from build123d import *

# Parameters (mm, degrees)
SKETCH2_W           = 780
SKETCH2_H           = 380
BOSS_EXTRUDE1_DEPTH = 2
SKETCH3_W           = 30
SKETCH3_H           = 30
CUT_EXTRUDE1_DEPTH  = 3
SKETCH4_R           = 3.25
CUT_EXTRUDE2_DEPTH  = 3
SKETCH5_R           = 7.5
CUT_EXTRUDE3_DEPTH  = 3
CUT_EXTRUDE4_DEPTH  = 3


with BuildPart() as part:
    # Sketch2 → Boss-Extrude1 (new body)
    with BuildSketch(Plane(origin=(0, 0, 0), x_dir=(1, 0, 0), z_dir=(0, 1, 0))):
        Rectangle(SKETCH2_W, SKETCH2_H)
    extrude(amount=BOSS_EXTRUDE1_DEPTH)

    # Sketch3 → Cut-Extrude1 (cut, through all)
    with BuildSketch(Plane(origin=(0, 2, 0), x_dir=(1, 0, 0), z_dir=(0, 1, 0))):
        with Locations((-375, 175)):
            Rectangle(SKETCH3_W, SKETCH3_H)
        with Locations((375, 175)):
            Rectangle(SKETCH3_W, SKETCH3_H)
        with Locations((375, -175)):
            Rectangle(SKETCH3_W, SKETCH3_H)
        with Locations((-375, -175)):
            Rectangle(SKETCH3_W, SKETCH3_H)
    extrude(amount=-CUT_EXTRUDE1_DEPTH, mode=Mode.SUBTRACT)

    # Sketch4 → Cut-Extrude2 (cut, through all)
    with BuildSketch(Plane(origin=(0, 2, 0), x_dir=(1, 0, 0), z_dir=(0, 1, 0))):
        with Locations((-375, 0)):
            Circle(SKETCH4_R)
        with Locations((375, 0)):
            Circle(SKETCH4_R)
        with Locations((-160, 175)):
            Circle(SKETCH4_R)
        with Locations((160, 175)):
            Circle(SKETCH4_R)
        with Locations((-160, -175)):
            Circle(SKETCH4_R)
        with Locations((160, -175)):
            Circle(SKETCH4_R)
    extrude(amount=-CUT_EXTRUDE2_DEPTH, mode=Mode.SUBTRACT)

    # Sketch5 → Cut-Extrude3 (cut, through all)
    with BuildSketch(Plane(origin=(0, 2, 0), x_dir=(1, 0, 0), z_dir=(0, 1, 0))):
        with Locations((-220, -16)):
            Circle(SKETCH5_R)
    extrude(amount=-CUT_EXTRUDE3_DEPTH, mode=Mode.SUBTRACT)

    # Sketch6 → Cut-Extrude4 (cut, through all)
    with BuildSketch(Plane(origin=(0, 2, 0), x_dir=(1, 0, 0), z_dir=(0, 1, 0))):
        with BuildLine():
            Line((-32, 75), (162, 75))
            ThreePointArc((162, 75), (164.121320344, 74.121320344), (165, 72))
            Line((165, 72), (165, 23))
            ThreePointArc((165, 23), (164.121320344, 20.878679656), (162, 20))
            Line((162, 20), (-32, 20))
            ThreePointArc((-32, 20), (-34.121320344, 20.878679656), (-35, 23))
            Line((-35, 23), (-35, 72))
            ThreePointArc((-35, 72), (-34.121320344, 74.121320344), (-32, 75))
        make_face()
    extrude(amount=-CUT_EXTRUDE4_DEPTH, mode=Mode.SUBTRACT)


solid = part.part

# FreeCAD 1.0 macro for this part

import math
import FreeCAD as App
import Part
import Sketcher
from FreeCAD import Vector
Q = App.Units.Quantity

doc = App.newDocument("Part")
body = doc.addObject("PartDesign::Body", "Body")

sketch1 = body.newObject("Sketcher::SketchObject", "Sketch")
sketch1.AttachmentSupport = (doc.getObject("XZ_Plane"), [""])
sketch1.MapMode = "FlatFace"
sketch1.addGeometry(Part.LineSegment(Vector(-390, -190, 0), Vector(-390, 190, 0)), False)
sketch1.addGeometry(Part.LineSegment(Vector(-390, 190, 0), Vector(390, 190, 0)), False)
sketch1.addGeometry(Part.LineSegment(Vector(390, 190, 0), Vector(390, -190, 0)), False)
sketch1.addGeometry(Part.LineSegment(Vector(390, -190, 0), Vector(-390, -190, 0)), False)
sketch1.addConstraint(Sketcher.Constraint("Coincident", 0, 2, 1, 1))
sketch1.addConstraint(Sketcher.Constraint("Coincident", 1, 2, 2, 1))
sketch1.addConstraint(Sketcher.Constraint("Coincident", 2, 2, 3, 1))
sketch1.addConstraint(Sketcher.Constraint("Coincident", 3, 2, 0, 1))
sketch1.addConstraint(Sketcher.Constraint("Vertical", 0))
sketch1.addConstraint(Sketcher.Constraint("Horizontal", 1))
sketch1.addConstraint(Sketcher.Constraint("Vertical", 2))
sketch1.addConstraint(Sketcher.Constraint("Horizontal", 3))
sketch1.addConstraint(Sketcher.Constraint("Symmetric", 0, 2, 2, 2, -1, 1))
sketch1.addConstraint(Sketcher.Constraint("DistanceX", 1, 1, 1, 2, Q("780 mm")))
sketch1.addConstraint(Sketcher.Constraint("DistanceY", 0, 1, 0, 2, Q("380 mm")))
pad1 = body.newObject("PartDesign::Pad", "Pad")
pad1.Profile = sketch1
pad1.Length = 2
pad1.Reversed = True

sketch2 = body.newObject("Sketcher::SketchObject", "Sketch001")
sketch2.AttachmentSupport = (doc.getObject("XZ_Plane"), [""])
sketch2.MapMode = "FlatFace"
sketch2.AttachmentOffset = App.Placement(Vector(0, 0, -2), App.Rotation())
sketch2.addGeometry(Part.LineSegment(Vector(-390, -190, 0), Vector(-390, -160, 0)), False)
sketch2.addGeometry(Part.LineSegment(Vector(-390, -160, 0), Vector(-360, -160, 0)), False)
sketch2.addGeometry(Part.LineSegment(Vector(-360, -160, 0), Vector(-360, -190, 0)), False)
sketch2.addGeometry(Part.LineSegment(Vector(-360, -190, 0), Vector(-390, -190, 0)), False)
sketch2.addGeometry(Part.LineSegment(Vector(360, -190, 0), Vector(360, -160, 0)), False)
sketch2.addGeometry(Part.LineSegment(Vector(360, -160, 0), Vector(390, -160, 0)), False)
sketch2.addGeometry(Part.LineSegment(Vector(390, -160, 0), Vector(390, -190, 0)), False)
sketch2.addGeometry(Part.LineSegment(Vector(390, -190, 0), Vector(360, -190, 0)), False)
sketch2.addGeometry(Part.LineSegment(Vector(360, 160, 0), Vector(360, 190, 0)), False)
sketch2.addGeometry(Part.LineSegment(Vector(360, 190, 0), Vector(390, 190, 0)), False)
sketch2.addGeometry(Part.LineSegment(Vector(390, 190, 0), Vector(390, 160, 0)), False)
sketch2.addGeometry(Part.LineSegment(Vector(390, 160, 0), Vector(360, 160, 0)), False)
sketch2.addGeometry(Part.LineSegment(Vector(-390, 160, 0), Vector(-390, 190, 0)), False)
sketch2.addGeometry(Part.LineSegment(Vector(-390, 190, 0), Vector(-360, 190, 0)), False)
sketch2.addGeometry(Part.LineSegment(Vector(-360, 190, 0), Vector(-360, 160, 0)), False)
sketch2.addGeometry(Part.LineSegment(Vector(-360, 160, 0), Vector(-390, 160, 0)), False)
sketch2.addConstraint(Sketcher.Constraint("Coincident", 0, 2, 1, 1))
sketch2.addConstraint(Sketcher.Constraint("Coincident", 1, 2, 2, 1))
sketch2.addConstraint(Sketcher.Constraint("Coincident", 2, 2, 3, 1))
sketch2.addConstraint(Sketcher.Constraint("Coincident", 3, 2, 0, 1))
sketch2.addConstraint(Sketcher.Constraint("Coincident", 4, 2, 5, 1))
sketch2.addConstraint(Sketcher.Constraint("Coincident", 5, 2, 6, 1))
sketch2.addConstraint(Sketcher.Constraint("Coincident", 6, 2, 7, 1))
sketch2.addConstraint(Sketcher.Constraint("Coincident", 7, 2, 4, 1))
sketch2.addConstraint(Sketcher.Constraint("Coincident", 8, 2, 9, 1))
sketch2.addConstraint(Sketcher.Constraint("Coincident", 9, 2, 10, 1))
sketch2.addConstraint(Sketcher.Constraint("Coincident", 10, 2, 11, 1))
sketch2.addConstraint(Sketcher.Constraint("Coincident", 11, 2, 8, 1))
sketch2.addConstraint(Sketcher.Constraint("Coincident", 12, 2, 13, 1))
sketch2.addConstraint(Sketcher.Constraint("Coincident", 13, 2, 14, 1))
sketch2.addConstraint(Sketcher.Constraint("Coincident", 14, 2, 15, 1))
sketch2.addConstraint(Sketcher.Constraint("Coincident", 15, 2, 12, 1))
sketch2.addConstraint(Sketcher.Constraint("Vertical", 0))
sketch2.addConstraint(Sketcher.Constraint("Horizontal", 1))
sketch2.addConstraint(Sketcher.Constraint("Vertical", 2))
sketch2.addConstraint(Sketcher.Constraint("Horizontal", 3))
sketch2.addConstraint(Sketcher.Constraint("Vertical", 4))
sketch2.addConstraint(Sketcher.Constraint("Horizontal", 5))
sketch2.addConstraint(Sketcher.Constraint("Vertical", 6))
sketch2.addConstraint(Sketcher.Constraint("Horizontal", 7))
sketch2.addConstraint(Sketcher.Constraint("Vertical", 8))
sketch2.addConstraint(Sketcher.Constraint("Horizontal", 9))
sketch2.addConstraint(Sketcher.Constraint("Vertical", 10))
sketch2.addConstraint(Sketcher.Constraint("Horizontal", 11))
sketch2.addConstraint(Sketcher.Constraint("Vertical", 12))
sketch2.addConstraint(Sketcher.Constraint("Horizontal", 13))
sketch2.addConstraint(Sketcher.Constraint("Vertical", 14))
sketch2.addConstraint(Sketcher.Constraint("Horizontal", 15))
sketch2.addConstraint(Sketcher.Constraint("Symmetric", 2, 2, 8, 2, -1, 1))
sketch2.addConstraint(Sketcher.Constraint("Symmetric", 0, 2, 10, 2, -1, 1))
sketch2.addConstraint(Sketcher.Constraint("Symmetric", 6, 2, 12, 2, -1, 1))
sketch2.addConstraint(Sketcher.Constraint("Symmetric", 4, 2, 14, 2, -1, 1))
sketch2.addConstraint(Sketcher.Constraint("Symmetric", 1, 2, 4, 2, -2))
sketch2.addConstraint(Sketcher.Constraint("Symmetric", 3, 2, 6, 2, -2))
sketch2.addConstraint(Sketcher.Constraint("Equal", 15, 0))
sketch2.addConstraint(Sketcher.Constraint("DistanceX", 1, 1, 1, 2, Q("30 mm")))
sketch2.addConstraint(Sketcher.Constraint("DistanceX", 0, 2, -1, 1, Q("390 mm")))
sketch2.addConstraint(Sketcher.Constraint("DistanceY", 0, 2, -1, 1, Q("160 mm")))
pocket1 = body.newObject("PartDesign::Pocket", "Pocket")
pocket1.Profile = sketch2
pocket1.Type = "ThroughAll"
pocket1.Reversed = True

sketch3 = body.newObject("Sketcher::SketchObject", "Sketch002")
sketch3.AttachmentSupport = (doc.getObject("XZ_Plane"), [""])
sketch3.MapMode = "FlatFace"
sketch3.AttachmentOffset = App.Placement(Vector(0, 0, -2), App.Rotation())
sketch3.addGeometry(Part.Circle(Vector(-375, 0, 0), Vector(0, 0, 1), 3.2), False)
sketch3.addGeometry(Part.Circle(Vector(375, 0, 0), Vector(0, 0, 1), 3.2), False)
sketch3.addGeometry(Part.Circle(Vector(-160, -175, 0), Vector(0, 0, 1), 3.2), False)
sketch3.addGeometry(Part.Circle(Vector(160, -175, 0), Vector(0, 0, 1), 3.2), False)
sketch3.addGeometry(Part.Circle(Vector(-160, 175, 0), Vector(0, 0, 1), 3.2), False)
sketch3.addGeometry(Part.Circle(Vector(160, 175, 0), Vector(0, 0, 1), 3.2), False)
sketch3.addConstraint(Sketcher.Constraint("Equal", 0, 1))
sketch3.addConstraint(Sketcher.Constraint("Equal", 1, 2))
sketch3.addConstraint(Sketcher.Constraint("Equal", 2, 3))
sketch3.addConstraint(Sketcher.Constraint("Equal", 3, 4))
sketch3.addConstraint(Sketcher.Constraint("Equal", 4, 5))
sketch3.addConstraint(Sketcher.Constraint("Symmetric", 0, 3, 1, 3, -1, 1))
sketch3.addConstraint(Sketcher.Constraint("Symmetric", 3, 3, 4, 3, -1, 1))
sketch3.addConstraint(Sketcher.Constraint("Symmetric", 2, 3, 5, 3, -1, 1))
sketch3.addConstraint(Sketcher.Constraint("Symmetric", 2, 3, 3, 3, -2))
sketch3.addConstraint(Sketcher.Constraint("PointOnObject", 0, 3, -1))
sketch3.addConstraint(Sketcher.Constraint("Diameter", 0, Q("6.5 mm")))
sketch3.addConstraint(Sketcher.Constraint("DistanceX", 0, 3, -1, 1, Q("375 mm")))
sketch3.addConstraint(Sketcher.Constraint("DistanceX", 2, 3, -1, 1, Q("160 mm")))
sketch3.addConstraint(Sketcher.Constraint("DistanceY", 2, 3, -1, 1, Q("175 mm")))
pocket2 = body.newObject("PartDesign::Pocket", "Pocket001")
pocket2.Profile = sketch3
pocket2.Type = "ThroughAll"
pocket2.Reversed = True

sketch4 = body.newObject("Sketcher::SketchObject", "Sketch003")
sketch4.AttachmentSupport = (doc.getObject("XZ_Plane"), [""])
sketch4.MapMode = "FlatFace"
sketch4.AttachmentOffset = App.Placement(Vector(0, 0, -2), App.Rotation())
sketch4.addGeometry(Part.Circle(Vector(-220, 16, 0), Vector(0, 0, 1), 8), False)
sketch4.addConstraint(Sketcher.Constraint("Diameter", 0, Q("15 mm")))
sketch4.addConstraint(Sketcher.Constraint("DistanceX", 0, 3, -1, 1, Q("220 mm")))
sketch4.addConstraint(Sketcher.Constraint("DistanceY", -1, 1, 0, 3, Q("16 mm")))
pocket3 = body.newObject("PartDesign::Pocket", "Pocket002")
pocket3.Profile = sketch4
pocket3.Type = "ThroughAll"
pocket3.Reversed = True

sketch5 = body.newObject("Sketcher::SketchObject", "Sketch004")
sketch5.AttachmentSupport = (doc.getObject("XZ_Plane"), [""])
sketch5.MapMode = "FlatFace"
sketch5.AttachmentOffset = App.Placement(Vector(0, 0, -2), App.Rotation())
sketch5.addGeometry(Part.LineSegment(Vector(162, -75, 0), Vector(-32, -75, 0)), False)
sketch5.addGeometry(Part.ArcOfCircle(Part.Circle(Vector(-32, -72, 0), Vector(0, 0, 1), 3), math.radians(180), math.radians(270)), False)
sketch5.addGeometry(Part.LineSegment(Vector(-35, -72, 0), Vector(-35, -23, 0)), False)
sketch5.addGeometry(Part.ArcOfCircle(Part.Circle(Vector(-32, -23, 0), Vector(0, 0, 1), 3), math.radians(90), math.radians(180)), False)
sketch5.addGeometry(Part.LineSegment(Vector(-32, -20, 0), Vector(162, -20, 0)), False)
sketch5.addGeometry(Part.ArcOfCircle(Part.Circle(Vector(162, -23, 0), Vector(0, 0, 1), 3), math.radians(0), math.radians(90)), False)
sketch5.addGeometry(Part.LineSegment(Vector(165, -23, 0), Vector(165, -72, 0)), False)
sketch5.addGeometry(Part.ArcOfCircle(Part.Circle(Vector(162, -72, 0), Vector(0, 0, 1), 3), math.radians(-90), math.radians(0)), False)
sketch5.addConstraint(Sketcher.Constraint("Tangent", 0, 2, 1, 2))
sketch5.addConstraint(Sketcher.Constraint("Tangent", 1, 1, 2, 1))
sketch5.addConstraint(Sketcher.Constraint("Tangent", 2, 2, 3, 2))
sketch5.addConstraint(Sketcher.Constraint("Tangent", 3, 1, 4, 1))
sketch5.addConstraint(Sketcher.Constraint("Tangent", 4, 2, 5, 2))
sketch5.addConstraint(Sketcher.Constraint("Tangent", 5, 1, 6, 1))
sketch5.addConstraint(Sketcher.Constraint("Tangent", 6, 2, 7, 2))
sketch5.addConstraint(Sketcher.Constraint("Tangent", 7, 1, 0, 1))
sketch5.addConstraint(Sketcher.Constraint("Horizontal", 0))
sketch5.addConstraint(Sketcher.Constraint("Vertical", 2))
sketch5.addConstraint(Sketcher.Constraint("Horizontal", 4))
sketch5.addConstraint(Sketcher.Constraint("Vertical", 6))
sketch5.addConstraint(Sketcher.Constraint("Equal", 1, 3))
sketch5.addConstraint(Sketcher.Constraint("Equal", 3, 5))
sketch5.addConstraint(Sketcher.Constraint("Equal", 5, 7))
sketch5.addConstraint(Sketcher.Constraint("Radius", 1, Q("3 mm")))
sketch5.addConstraint(Sketcher.Constraint("DistanceX", 0, 2, 0, 1, Q("194 mm")))
sketch5.addConstraint(Sketcher.Constraint("DistanceY", 2, 1, 2, 2, Q("49 mm")))
sketch5.addConstraint(Sketcher.Constraint("DistanceX", 1, 3, -1, 1, Q("32 mm")))
sketch5.addConstraint(Sketcher.Constraint("DistanceY", 1, 3, -1, 1, Q("72 mm")))
pocket4 = body.newObject("PartDesign::Pocket", "Pocket003")
pocket4.Profile = sketch5
pocket4.Type = "ThroughAll"
pocket4.Reversed = True

doc.recompute()
